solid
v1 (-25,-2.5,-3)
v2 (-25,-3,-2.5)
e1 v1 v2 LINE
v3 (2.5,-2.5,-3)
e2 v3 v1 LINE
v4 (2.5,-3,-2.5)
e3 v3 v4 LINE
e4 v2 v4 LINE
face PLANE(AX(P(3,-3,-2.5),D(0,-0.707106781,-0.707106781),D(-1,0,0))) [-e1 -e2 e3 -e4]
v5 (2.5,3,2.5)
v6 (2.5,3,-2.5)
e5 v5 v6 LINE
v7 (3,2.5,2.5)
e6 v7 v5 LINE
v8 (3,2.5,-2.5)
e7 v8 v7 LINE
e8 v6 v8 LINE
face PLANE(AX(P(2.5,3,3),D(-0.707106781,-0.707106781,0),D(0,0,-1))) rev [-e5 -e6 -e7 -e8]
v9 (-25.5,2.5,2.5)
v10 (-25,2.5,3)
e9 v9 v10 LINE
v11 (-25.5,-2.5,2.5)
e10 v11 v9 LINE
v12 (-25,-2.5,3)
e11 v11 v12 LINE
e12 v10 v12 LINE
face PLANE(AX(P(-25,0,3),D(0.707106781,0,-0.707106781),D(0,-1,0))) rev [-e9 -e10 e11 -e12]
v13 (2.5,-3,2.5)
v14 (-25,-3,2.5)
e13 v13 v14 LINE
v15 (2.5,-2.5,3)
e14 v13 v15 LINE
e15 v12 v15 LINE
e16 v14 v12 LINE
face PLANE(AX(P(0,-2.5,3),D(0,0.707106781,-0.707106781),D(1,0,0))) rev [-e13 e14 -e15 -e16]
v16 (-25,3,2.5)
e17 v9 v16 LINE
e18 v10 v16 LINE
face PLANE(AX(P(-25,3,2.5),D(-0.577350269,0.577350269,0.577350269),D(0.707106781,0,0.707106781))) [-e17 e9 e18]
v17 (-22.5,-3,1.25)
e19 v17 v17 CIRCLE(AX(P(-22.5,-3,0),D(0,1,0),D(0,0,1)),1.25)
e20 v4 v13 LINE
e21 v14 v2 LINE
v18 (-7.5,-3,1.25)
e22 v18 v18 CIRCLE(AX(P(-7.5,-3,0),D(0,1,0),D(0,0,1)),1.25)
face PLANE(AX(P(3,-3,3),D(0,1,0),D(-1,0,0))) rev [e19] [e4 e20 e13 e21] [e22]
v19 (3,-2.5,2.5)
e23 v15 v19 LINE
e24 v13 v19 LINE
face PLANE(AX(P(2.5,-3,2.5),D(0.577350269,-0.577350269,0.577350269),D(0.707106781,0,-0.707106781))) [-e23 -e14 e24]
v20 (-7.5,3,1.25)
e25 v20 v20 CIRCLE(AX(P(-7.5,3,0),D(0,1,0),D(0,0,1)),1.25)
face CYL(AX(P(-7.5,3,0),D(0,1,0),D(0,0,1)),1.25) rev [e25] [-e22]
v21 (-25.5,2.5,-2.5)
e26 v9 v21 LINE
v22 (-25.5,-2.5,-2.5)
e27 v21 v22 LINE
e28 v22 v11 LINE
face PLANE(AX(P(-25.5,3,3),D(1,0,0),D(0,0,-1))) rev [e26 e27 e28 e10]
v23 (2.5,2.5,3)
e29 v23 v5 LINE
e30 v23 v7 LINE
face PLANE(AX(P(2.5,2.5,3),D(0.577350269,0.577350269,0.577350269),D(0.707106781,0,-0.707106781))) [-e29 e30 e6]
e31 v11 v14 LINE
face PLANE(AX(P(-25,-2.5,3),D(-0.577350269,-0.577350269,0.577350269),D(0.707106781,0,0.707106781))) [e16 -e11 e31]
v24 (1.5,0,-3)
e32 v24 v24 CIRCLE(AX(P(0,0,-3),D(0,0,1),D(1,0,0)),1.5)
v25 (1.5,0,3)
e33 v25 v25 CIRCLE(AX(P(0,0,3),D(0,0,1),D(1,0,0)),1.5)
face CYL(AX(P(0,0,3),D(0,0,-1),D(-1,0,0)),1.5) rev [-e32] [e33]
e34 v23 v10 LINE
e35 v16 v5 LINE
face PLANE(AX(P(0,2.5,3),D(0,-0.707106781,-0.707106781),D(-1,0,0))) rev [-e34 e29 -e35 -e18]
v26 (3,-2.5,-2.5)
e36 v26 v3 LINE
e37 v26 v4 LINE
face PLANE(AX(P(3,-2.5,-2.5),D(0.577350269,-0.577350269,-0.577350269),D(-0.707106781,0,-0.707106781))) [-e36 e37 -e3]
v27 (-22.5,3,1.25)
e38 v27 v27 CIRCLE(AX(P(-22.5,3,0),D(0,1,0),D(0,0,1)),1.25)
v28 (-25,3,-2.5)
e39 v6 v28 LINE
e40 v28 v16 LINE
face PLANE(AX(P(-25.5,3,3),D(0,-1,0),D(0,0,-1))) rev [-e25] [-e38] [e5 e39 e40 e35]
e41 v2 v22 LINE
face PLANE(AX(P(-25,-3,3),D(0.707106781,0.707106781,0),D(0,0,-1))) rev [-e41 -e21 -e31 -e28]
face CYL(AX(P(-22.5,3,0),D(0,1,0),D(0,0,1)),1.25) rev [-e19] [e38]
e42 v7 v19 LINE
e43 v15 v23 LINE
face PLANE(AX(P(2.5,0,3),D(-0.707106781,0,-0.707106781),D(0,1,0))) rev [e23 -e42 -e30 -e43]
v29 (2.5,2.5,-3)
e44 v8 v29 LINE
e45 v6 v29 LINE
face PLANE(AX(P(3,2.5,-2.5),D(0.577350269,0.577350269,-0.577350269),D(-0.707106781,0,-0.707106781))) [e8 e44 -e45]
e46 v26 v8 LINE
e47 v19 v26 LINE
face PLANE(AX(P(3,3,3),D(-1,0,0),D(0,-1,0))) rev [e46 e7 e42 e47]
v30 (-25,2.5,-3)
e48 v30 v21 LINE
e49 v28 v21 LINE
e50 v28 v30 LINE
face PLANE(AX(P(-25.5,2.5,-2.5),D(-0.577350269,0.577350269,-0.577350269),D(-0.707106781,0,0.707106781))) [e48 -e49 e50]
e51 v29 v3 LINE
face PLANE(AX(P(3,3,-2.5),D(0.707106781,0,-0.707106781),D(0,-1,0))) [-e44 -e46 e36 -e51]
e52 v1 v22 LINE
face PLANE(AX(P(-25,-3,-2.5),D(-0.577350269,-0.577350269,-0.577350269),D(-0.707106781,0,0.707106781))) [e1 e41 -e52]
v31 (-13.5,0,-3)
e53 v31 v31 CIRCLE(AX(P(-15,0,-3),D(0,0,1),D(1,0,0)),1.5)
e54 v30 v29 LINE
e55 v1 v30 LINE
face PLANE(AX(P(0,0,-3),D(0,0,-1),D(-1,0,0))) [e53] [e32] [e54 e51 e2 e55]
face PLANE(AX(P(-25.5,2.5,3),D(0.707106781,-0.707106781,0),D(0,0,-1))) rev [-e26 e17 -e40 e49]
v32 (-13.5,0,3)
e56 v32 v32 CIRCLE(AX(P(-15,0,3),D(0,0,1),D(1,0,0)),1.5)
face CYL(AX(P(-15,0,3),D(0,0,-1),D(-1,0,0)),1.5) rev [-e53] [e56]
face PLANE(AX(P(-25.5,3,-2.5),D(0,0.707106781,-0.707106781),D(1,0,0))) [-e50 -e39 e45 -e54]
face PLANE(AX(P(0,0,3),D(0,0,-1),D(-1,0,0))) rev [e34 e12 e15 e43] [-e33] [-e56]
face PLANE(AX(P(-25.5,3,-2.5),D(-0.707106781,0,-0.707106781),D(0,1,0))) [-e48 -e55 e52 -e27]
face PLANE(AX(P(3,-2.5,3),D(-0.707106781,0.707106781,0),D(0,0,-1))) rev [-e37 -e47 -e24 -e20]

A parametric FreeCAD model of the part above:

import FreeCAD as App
import Part
import Sketcher
Q = App.Units.Quantity


def edges_at(feature, points):
    """Names of the edges that pass closest to the given points."""
    edges = feature.Shape.Edges
    near = lambda p: min(range(len(edges)), key=lambda i: edges[i].distToShape(Part.Vertex(*p))[0])
    return sorted({f"Edge{near(p) + 1}" for p in points})


def add_polygon(sketch, points):
    """Adds a closed chain of lines whose ends are joined by coincident constraints."""
    first, n = sketch.GeometryCount, len(points)
    for a, b in zip(points, points[1:] + points[:1]):
        sketch.addGeometry(Part.LineSegment(App.Vector(*a, 0), App.Vector(*b, 0)), False)
    for i in range(n):
        sketch.addConstraint(Sketcher.Constraint("Coincident", first + i, 2, first + (i + 1) % n, 1))

doc = App.newDocument("Part")
params = doc.addObject("Spreadsheet::Sheet", "Params")
for row, (alias, value) in enumerate([
    ("sketch1_diameter", "3 mm"),
    ("sketch1_height", "6 mm"),
    ("sketch1_width", "28.5 mm"),
    ("pad1_length", "6 mm"),
    ("sketch2_diameter", "2.5 mm"),
    ("hole_diameter", "2.5 mm"),
    ("chamfer_size", "0.5 mm"),
], start=1):
    params.set(f"A{row}", alias)
    params.set(f"B{row}", "=" + value)
    params.setAlias(f"B{row}", alias)

body = doc.addObject("PartDesign::Body", "Body")

sketch1 = doc.addObject("Sketcher::SketchObject", "Sketch")
body.addObject(sketch1)
sketch1.AttachmentSupport = (doc.XY_Plane, [""])
sketch1.MapMode = "FlatFace"
add_polygon(sketch1, [(-25.5, 3), (-25.5, -3), (3, -3), (3, 3)])
sketch1.addGeometry(Part.Circle(App.Vector(-15, 0, 0), App.Vector(0, 0, 1), 1.5), False)
sketch1.addGeometry(Part.Circle(App.Vector(0, 0, 0), App.Vector(0, 0, 1), 1.5), False)
sketch1.addConstraint([
    Sketcher.Constraint("Vertical", 0),
    Sketcher.Constraint("Horizontal", 1),
    Sketcher.Constraint("Vertical", 2),
    Sketcher.Constraint("Horizontal", 3),
    Sketcher.Constraint("Coincident", 5, 3, -1, 1),
    Sketcher.Constraint("Equal", 4, 5),
    Sketcher.Constraint("PointOnObject", 4, 3, -1),
    Sketcher.Constraint("Diameter", 4, Q("3 mm")),
    Sketcher.Constraint("DistanceY", 0, 2, 0, 1, Q("6 mm")),
    Sketcher.Constraint("DistanceX", 1, 1, 1, 2, Q("28.5 mm")),
    Sketcher.Constraint("DistanceX", 4, 3, -1, 1, Q("15 mm")),
    Sketcher.Constraint("DistanceY", 0, 2, -1, 1, Q("3 mm")),
    Sketcher.Constraint("DistanceX", -1, 1, 1, 2, Q("3 mm")),
])
sketch1.setExpression("Constraints[11]", "Params.sketch1_diameter")
sketch1.setExpression("Constraints[12]", "Params.sketch1_height")
sketch1.setExpression("Constraints[13]", "Params.sketch1_width")
pad1 = doc.addObject("PartDesign::Pad", "Pad")
body.addObject(pad1)
pad1.Profile = sketch1
pad1.setExpression("Length", "Params.pad1_length")
pad1.Midplane = True

sketch2 = doc.addObject("Sketcher::SketchObject", "Sketch001")
body.addObject(sketch2)
sketch2.AttachmentSupport = (doc.XZ_Plane, [""])
sketch2.MapMode = "FlatFace"
sketch2.AttachmentOffset = App.Placement(App.Vector(0, 0, -3), App.Rotation())
sketch2.addGeometry([
    Part.Circle(App.Vector(-7.5, 0, 0), App.Vector(0, 0, 1), 1.2),
    Part.Circle(App.Vector(-22.5, 0, 0), App.Vector(0, 0, 1), 1.2),
], False)
sketch2.addConstraint([
    Sketcher.Constraint("Equal", 0, 1),
    Sketcher.Constraint("PointOnObject", 0, 3, -1),
    Sketcher.Constraint("PointOnObject", 1, 3, -1),
    Sketcher.Constraint("Diameter", 0, Q("2.5 mm")),
    Sketcher.Constraint("DistanceX", 1, 3, 0, 3, Q("15 mm")),
    Sketcher.Constraint("DistanceX", 0, 3, -1, 1, Q("7.5 mm")),
])
sketch2.setExpression("Constraints[3]", "Params.sketch2_diameter")
doc.recompute()
hole = doc.addObject("PartDesign::Hole", "Hole")
body.addObject(hole)
hole.Profile = sketch2
hole.ThreadType = "None"
hole.setExpression("Diameter", "Params.hole_diameter")
hole.DepthType = "ThroughAll"
hole.Reversed = True
doc.recompute()

chamfer = doc.addObject("PartDesign::Chamfer", "Chamfer")
body.addObject(chamfer)
chamfer.Base = (hole, edges_at(hole, [
    (-11.25, -3, 3),
    (3, 0, 3),
    (-11.25, 3, 3),
    (3, 0, -3),
    (-11.25, -3, -3),
    (-25.5, 0, -3),
    (-11.25, 3, -3),
    (-25.5, 0, 3),
    (3, 3, 0),
    (3, -3, 0),
    (-25.5, -3, 0),
    (-25.5, 3, 0),
]))
chamfer.setExpression("Size", "Params.chamfer_size")

doc.recompute()
